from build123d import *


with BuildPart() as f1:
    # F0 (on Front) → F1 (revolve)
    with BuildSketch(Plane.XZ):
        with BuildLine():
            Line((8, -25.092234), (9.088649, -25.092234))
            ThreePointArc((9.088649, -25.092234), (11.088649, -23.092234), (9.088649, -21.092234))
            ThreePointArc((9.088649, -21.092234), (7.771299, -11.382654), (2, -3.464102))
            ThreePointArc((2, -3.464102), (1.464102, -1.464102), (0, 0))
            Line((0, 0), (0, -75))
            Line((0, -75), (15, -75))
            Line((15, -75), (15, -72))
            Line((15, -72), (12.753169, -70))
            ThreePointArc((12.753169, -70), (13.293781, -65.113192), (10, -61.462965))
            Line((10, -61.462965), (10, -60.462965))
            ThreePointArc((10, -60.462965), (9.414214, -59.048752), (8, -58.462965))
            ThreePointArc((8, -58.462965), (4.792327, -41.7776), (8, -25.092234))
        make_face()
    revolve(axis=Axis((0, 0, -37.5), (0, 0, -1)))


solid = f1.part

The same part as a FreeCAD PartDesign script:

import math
import FreeCAD as App
import Part
import Sketcher
Q = App.Units.Quantity

doc = App.newDocument("Part")
body = doc.addObject("PartDesign::Body", "Body")

sketch1 = doc.addObject("Sketcher::SketchObject", "Sketch")
body.addObject(sketch1)
sketch1.AttachmentSupport = (doc.XZ_Plane, [""])
sketch1.MapMode = "FlatFace"
sketch1.addGeometry([
    Part.LineSegment(App.Vector(8, -25.092234, 0), App.Vector(9.088649, -25.092234, 0)),
    Part.ArcOfCircle(Part.Circle(App.Vector(9.088649, -23.092234, 0), App.Vector(0, 0, 1), 2), math.radians(-90), math.radians(90)),
    Part.ArcOfCircle(Part.Circle(App.Vector(-10.784633, -18.844391, 0), App.Vector(0, 0, 1), 20.000004), math.radians(-6.453229), math.radians(50.265458)),
    Part.ArcOfCircle(Part.Circle(App.Vector(-1.999999, -3.464101, 0), App.Vector(0, 0, 1), 3.999999), math.radians(-0.000013), math.radians(60.000008)),
    Part.LineSegment(App.Vector(0, 0, 0), App.Vector(0, -75, 0)),
    Part.LineSegment(App.Vector(0, -75, 0), App.Vector(15, -75, 0)),
    Part.LineSegment(App.Vector(15, -75, 0), App.Vector(15, -72, 0)),
    Part.LineSegment(App.Vector(15, -72, 0), App.Vector(12.753169, -70, 0)),
    Part.ArcOfCircle(Part.Circle(App.Vector(7.58339, -66.954777, 0), App.Vector(0, 0, 1), 6), math.radians(-30.499923), math.radians(66.248645)),
    Part.LineSegment(App.Vector(10, -61.462965, 0), App.Vector(10, -60.462965, 0)),
    Part.ArcOfCircle(Part.Circle(App.Vector(8, -60.462965, 0), App.Vector(0, 0, 1), 2), math.radians(0.000006), math.radians(89.999994)),
    Part.ArcOfCircle(Part.Circle(App.Vector(49.79233, -41.7776, 0), App.Vector(0, 0, 1), 45.000003), math.radians(158.235907), math.radians(201.764093)),
], False)
sketch1.addConstraint([
    Sketcher.Constraint("Tangent", 0, 2, 1, 1),
    Sketcher.Constraint("Coincident", 1, 2, 2, 1),
    Sketcher.Constraint("Coincident", 2, 2, 3, 1),
    Sketcher.Constraint("Coincident", 3, 2, 4, 1),
    Sketcher.Constraint("Coincident", 4, 2, 5, 1),
    Sketcher.Constraint("Coincident", 5, 2, 6, 1),
    Sketcher.Constraint("Coincident", 6, 2, 7, 1),
    Sketcher.Constraint("Coincident", 7, 2, 8, 1),
    Sketcher.Constraint("Coincident", 8, 2, 9, 1),
    Sketcher.Constraint("Tangent", 9, 2, 10, 1),
    Sketcher.Constraint("Coincident", 10, 2, 11, 2),
    Sketcher.Constraint("Coincident", 11, 1, 0, 1),
    Sketcher.Constraint("Horizontal", 0),
    Sketcher.Constraint("Vertical", 4),
    Sketcher.Constraint("Horizontal", 5),
    Sketcher.Constraint("Vertical", 6),
    Sketcher.Constraint("Vertical", 9),
    Sketcher.Constraint("Coincident", 3, 2, -1, 1),
    Sketcher.Constraint("Equal", 1, 10),
    Sketcher.Constraint("Horizontal", 3, 3, 2, 2),
    Sketcher.Constraint("Vertical", 0, 2, 1, 2),
    Sketcher.Constraint("Vertical", 10, 2, 11, 1),
    Sketcher.Constraint("Radius", 1, Q("2 mm")),
    Sketcher.Constraint("Radius", 3, Q("3.999999 mm")),
    Sketcher.Constraint("Radius", 8, Q("6 mm")),
    Sketcher.Constraint("DistanceX", 5, 1, 5, 2, Q("15 mm")),
    Sketcher.Constraint("DistanceY", 4, 2, 4, 1, Q("75 mm")),
    Sketcher.Constraint("DistanceY", 6, 1, 6, 2, Q("3 mm")),
    Sketcher.Constraint("DistanceY", 9, 1, 9, 2, Q("1 mm")),
    Sketcher.Constraint("DistanceX", 3, 3, -1, 1, Q("1.999999 mm")),
    Sketcher.Constraint("DistanceX", -1, 1, 10, 3, Q("8 mm")),
    Sketcher.Constraint("DistanceY", 7, 2, -1, 1, Q("70 mm")),
    Sketcher.Constraint("DistanceX", -1, 1, 10, 2, Q("8 mm")),
    Sketcher.Constraint("Radius", 2, Q("20.000004 mm")),
    Sketcher.Constraint("Radius", 11, Q("45.000003 mm")),
    Sketcher.Constraint("DistanceX", 0, 1, 0, 2, Q("1.088649 mm")),
    Sketcher.Constraint("DistanceY", 11, 3, -1, 1, Q("41.7776 mm")),
    Sketcher.Constraint("Distance", 7, Q("3.008031 mm")),
    Sketcher.Constraint("DistanceY", 2, 3, -1, 1, Q("18.844391 mm")),
])
revolution = doc.addObject("PartDesign::Revolution", "Revolution")
body.addObject(revolution)
revolution.Profile = sketch1
revolution.ReferenceAxis = (sketch1, ["V_Axis"])
revolution.Angle = 360

doc.recompute()
